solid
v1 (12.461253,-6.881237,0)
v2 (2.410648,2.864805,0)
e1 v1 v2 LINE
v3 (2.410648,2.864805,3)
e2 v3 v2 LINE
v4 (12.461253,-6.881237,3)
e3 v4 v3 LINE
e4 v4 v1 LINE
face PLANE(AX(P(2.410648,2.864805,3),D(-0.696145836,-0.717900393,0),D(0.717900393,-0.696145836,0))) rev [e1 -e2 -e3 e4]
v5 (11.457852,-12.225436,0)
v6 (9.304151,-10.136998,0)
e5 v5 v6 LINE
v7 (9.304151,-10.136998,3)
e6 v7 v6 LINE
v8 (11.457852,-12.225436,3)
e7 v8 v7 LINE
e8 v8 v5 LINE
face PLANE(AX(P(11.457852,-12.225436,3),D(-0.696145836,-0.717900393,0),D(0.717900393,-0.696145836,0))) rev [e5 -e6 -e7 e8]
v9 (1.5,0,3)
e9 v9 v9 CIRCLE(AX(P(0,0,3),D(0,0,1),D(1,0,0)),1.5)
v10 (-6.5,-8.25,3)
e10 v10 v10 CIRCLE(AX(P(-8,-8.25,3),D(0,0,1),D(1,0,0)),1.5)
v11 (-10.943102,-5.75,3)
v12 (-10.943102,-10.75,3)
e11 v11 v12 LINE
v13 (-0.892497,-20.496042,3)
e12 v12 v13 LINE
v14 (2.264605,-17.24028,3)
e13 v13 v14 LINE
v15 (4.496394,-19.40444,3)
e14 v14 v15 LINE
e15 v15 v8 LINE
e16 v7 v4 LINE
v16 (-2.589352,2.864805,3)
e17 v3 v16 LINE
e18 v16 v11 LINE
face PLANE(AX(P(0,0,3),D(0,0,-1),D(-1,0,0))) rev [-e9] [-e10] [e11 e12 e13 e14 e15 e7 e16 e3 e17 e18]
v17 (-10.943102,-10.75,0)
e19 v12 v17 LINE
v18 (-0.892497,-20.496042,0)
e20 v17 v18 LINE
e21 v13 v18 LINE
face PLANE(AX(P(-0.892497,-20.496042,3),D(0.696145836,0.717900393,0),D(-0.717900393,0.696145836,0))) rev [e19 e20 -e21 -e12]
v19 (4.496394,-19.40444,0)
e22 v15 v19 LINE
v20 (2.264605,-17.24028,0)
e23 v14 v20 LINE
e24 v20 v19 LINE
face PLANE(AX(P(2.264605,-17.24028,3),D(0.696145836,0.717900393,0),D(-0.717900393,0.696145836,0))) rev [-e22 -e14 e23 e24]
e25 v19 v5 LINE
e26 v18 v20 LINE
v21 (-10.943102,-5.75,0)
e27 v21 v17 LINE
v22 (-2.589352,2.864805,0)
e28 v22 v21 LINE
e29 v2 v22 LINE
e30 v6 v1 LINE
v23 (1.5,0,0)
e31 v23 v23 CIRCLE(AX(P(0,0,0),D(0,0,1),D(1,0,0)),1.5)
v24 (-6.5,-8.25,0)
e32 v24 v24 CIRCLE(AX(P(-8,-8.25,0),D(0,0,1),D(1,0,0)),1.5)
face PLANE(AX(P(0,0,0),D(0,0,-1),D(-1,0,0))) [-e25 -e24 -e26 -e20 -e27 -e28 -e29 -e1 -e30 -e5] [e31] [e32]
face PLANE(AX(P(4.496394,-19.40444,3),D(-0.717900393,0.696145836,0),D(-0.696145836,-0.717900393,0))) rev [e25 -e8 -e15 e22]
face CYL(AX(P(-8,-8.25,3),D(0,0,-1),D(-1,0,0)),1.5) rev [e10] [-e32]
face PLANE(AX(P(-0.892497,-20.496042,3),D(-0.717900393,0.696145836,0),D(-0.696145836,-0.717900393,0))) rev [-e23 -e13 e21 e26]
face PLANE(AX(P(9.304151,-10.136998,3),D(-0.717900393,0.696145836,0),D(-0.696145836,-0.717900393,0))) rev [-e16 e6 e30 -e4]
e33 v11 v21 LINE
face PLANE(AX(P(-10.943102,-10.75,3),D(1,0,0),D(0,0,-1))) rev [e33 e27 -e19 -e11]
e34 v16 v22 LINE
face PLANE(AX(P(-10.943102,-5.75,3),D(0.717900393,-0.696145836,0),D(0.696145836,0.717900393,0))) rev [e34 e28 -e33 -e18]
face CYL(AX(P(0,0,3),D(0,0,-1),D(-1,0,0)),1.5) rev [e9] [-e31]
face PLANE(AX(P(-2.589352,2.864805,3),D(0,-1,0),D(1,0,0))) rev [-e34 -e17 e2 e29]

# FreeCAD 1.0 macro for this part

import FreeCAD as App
import Part
import Sketcher
from FreeCAD import Vector
Q = App.Units.Quantity


def add_polygon(sketch, points):
    """Adds a closed chain of lines whose ends are joined by coincident constraints."""
    first, n = sketch.GeometryCount, len(points)
    for a, b in zip(points, points[1:] + points[:1]):
        sketch.addGeometry(Part.LineSegment(App.Vector(*a, 0), App.Vector(*b, 0)), False)
    for i in range(n):
        sketch.addConstraint(Sketcher.Constraint("Coincident", first + i, 2, first + (i + 1) % n, 1))

doc = App.newDocument("Part")
body = doc.addObject("PartDesign::Body", "Body")

# Sketch on XY plane
sketch1 = body.newObject("Sketcher::SketchObject", "Sketch")
sketch1.AttachmentSupport = (doc.getObject("XY_Plane"), [""])
sketch1.MapMode = "FlatFace"
add_polygon(sketch1, [(-2.6, 2.9), (-10.9, -5.8), (-10.9, -10.8), (-0.9, -20.5), (2.3, -17.2), (4.5, -19.4), (11.5, -12.2), (9.3, -10.1), (12.5, -6.9), (2.4, 2.9)])  # lines 0-9
sketch1.addGeometry(Part.Circle(Vector(-8, -8.2, 0), Vector(0, 0, 1), 1.5), False)  # 10
sketch1.addGeometry(Part.Circle(Vector(0, 0, 0), Vector(0, 0, 1), 1.5), False)  # 11
sketch1.addConstraint(Sketcher.Constraint("Vertical", 1))
sketch1.addConstraint(Sketcher.Constraint("Horizontal", 9))
sketch1.addConstraint(Sketcher.Constraint("Coincident", 11, 3, -1, 1))
sketch1.addConstraint(Sketcher.Constraint("Equal", 10, 11))
sketch1.addConstraint(Sketcher.Constraint("Perpendicular", 0, 2))
sketch1.addConstraint(Sketcher.Constraint("Perpendicular", 2, 3))
sketch1.addConstraint(Sketcher.Constraint("Perpendicular", 3, 4))
sketch1.addConstraint(Sketcher.Constraint("Perpendicular", 4, 5))
sketch1.addConstraint(Sketcher.Constraint("Perpendicular", 5, 6))
sketch1.addConstraint(Sketcher.Constraint("Perpendicular", 6, 7))
sketch1.addConstraint(Sketcher.Constraint("Perpendicular", 7, 8))
sketch1.addConstraint(Sketcher.Constraint("Equal", 9, 1))
sketch1.addConstraint(Sketcher.Constraint("Equal", 3, 7))
sketch1.addConstraint(Sketcher.Constraint("Equal", 2, 8))
sketch1.addConstraint(Sketcher.Constraint("Diameter", 10, Q("3 mm")))
sketch1.addConstraint(Sketcher.Constraint("DistanceX", 9, 2, 9, 1, Q("5 mm")))
sketch1.addConstraint(Sketcher.Constraint("Distance", 0, Q("12 mm")))
sketch1.addConstraint(Sketcher.Constraint("Distance", 2, Q("14 mm")))
sketch1.addConstraint(Sketcher.Constraint("Distance", 5, Q("10 mm")))
sketch1.addConstraint(Sketcher.Constraint("Distance", 6, Q("3 mm")))
sketch1.addConstraint(Sketcher.Constraint("DistanceX", 10, 3, -1, 1, Q("8 mm")))
sketch1.addConstraint(Sketcher.Constraint("DistanceY", 10, 3, 0, 2, Q("2.5 mm")))
sketch1.addConstraint(Sketcher.Constraint("DistanceY", 10, 3, -1, 1, Q("8.25 mm")))
sketch1.addConstraint(Sketcher.Constraint("DistanceY", 6, 2, -1, 1, Q("10.136998 mm")))
sketch1.addConstraint(Sketcher.Constraint("DistanceX", -1, 1, 6, 2, Q("9.304151 mm")))
pad1 = body.newObject("PartDesign::Pad", "Pad")
pad1.Profile = sketch1
pad1.Length = 3

doc.recompute()
